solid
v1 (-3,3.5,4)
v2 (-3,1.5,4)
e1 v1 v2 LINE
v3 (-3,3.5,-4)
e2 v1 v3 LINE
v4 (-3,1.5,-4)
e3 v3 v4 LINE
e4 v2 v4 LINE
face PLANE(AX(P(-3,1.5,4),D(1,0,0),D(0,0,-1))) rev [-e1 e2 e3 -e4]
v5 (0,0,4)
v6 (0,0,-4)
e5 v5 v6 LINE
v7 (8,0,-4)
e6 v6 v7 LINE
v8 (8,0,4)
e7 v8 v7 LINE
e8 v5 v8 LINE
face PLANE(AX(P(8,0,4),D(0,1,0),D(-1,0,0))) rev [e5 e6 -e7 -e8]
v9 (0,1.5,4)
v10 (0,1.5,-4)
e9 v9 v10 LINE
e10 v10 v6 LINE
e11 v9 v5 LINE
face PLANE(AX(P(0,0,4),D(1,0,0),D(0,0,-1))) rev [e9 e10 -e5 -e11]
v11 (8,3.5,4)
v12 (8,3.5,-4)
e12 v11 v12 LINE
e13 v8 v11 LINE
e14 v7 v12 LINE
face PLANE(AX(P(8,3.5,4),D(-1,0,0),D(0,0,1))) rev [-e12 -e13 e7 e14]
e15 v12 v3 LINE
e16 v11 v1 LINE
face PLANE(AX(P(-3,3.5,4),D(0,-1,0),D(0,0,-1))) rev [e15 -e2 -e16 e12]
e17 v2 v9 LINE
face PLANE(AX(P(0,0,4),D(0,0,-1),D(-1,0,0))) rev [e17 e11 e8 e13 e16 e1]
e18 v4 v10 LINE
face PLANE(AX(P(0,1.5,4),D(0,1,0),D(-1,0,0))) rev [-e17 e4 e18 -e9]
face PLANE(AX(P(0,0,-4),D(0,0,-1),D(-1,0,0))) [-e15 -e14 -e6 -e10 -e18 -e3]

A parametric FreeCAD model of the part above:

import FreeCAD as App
import Part
import Sketcher


def add_polygon(sketch, points):
    """Adds a closed chain of lines whose ends are joined by coincident constraints."""
    first, n = sketch.GeometryCount, len(points)
    for a, b in zip(points, points[1:] + points[:1]):
        sketch.addGeometry(Part.LineSegment(App.Vector(*a, 0), App.Vector(*b, 0)), False)
    for i in range(n):
        sketch.addConstraint(Sketcher.Constraint("Coincident", first + i, 2, first + (i + 1) % n, 1))

doc = App.newDocument("Part")
body = doc.addObject("PartDesign::Body", "Body")

# Sketch on XY plane
sketch1 = body.newObject("Sketcher::SketchObject", "Sketch")
sketch1.AttachmentSupport = (doc.getObject("XY_Plane"), [""])
sketch1.MapMode = "FlatFace"
add_polygon(sketch1, [(0, 1.5), (0, 0), (8, 0), (8, 3.5), (-3, 3.5), (-3, 1.5)])  # lines 0-5
sketch1.addConstraint(Sketcher.Constraint("Vertical", 0))
sketch1.addConstraint(Sketcher.Constraint("Horizontal", 1))
sketch1.addConstraint(Sketcher.Constraint("Vertical", 2))
sketch1.addConstraint(Sketcher.Constraint("Horizontal", 3))
sketch1.addConstraint(Sketcher.Constraint("Vertical", 4))
sketch1.addConstraint(Sketcher.Constraint("Horizontal", 5))
sketch1.addConstraint(Sketcher.Constraint("Coincident", 0, 2, -1, 1))
sketch1.addConstraint(Sketcher.Constraint("DistanceX", 1, 1, 1, 2, 8.0))
sketch1.addConstraint(Sketcher.Constraint("DistanceX", 3, 2, 3, 1, 11.0))
sketch1.addConstraint(Sketcher.Constraint("DistanceY", 4, 2, 4, 1, 2.0))
sketch1.addConstraint(Sketcher.Constraint("DistanceY", 0, 2, 0, 1, 1.5))
pad1 = body.newObject("PartDesign::Pad", "Pad")
pad1.Profile = sketch1
pad1.Length = 8
pad1.Midplane = True

doc.recompute()
